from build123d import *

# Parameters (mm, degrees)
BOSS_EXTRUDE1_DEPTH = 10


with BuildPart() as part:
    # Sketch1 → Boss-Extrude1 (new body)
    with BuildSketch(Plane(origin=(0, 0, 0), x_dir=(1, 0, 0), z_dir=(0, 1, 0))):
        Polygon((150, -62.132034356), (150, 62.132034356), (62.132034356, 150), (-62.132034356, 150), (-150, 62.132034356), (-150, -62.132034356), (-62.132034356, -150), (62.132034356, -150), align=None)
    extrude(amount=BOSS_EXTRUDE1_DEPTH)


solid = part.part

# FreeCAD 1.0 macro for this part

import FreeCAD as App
import Part
import Sketcher
from FreeCAD import Vector

doc = App.newDocument("Part")
body = doc.addObject("PartDesign::Body", "Body")

# Sketch on XZ plane
sketch1 = body.newObject("Sketcher::SketchObject", "Sketch")
sketch1.AttachmentSupport = (doc.getObject("XZ_Plane"), [""])
sketch1.MapMode = "FlatFace"
sketch1.addGeometry([
    Part.LineSegment(Vector(150, 62, 0), Vector(150, -62, 0)),  # 0
    Part.LineSegment(Vector(150, -62, 0), Vector(62, -150, 0)),  # 1
    Part.LineSegment(Vector(62, -150, 0), Vector(-62, -150, 0)),  # 2
    Part.LineSegment(Vector(-62, -150, 0), Vector(-150, -62, 0)),  # 3
    Part.LineSegment(Vector(-150, -62, 0), Vector(-150, 62, 0)),  # 4
    Part.LineSegment(Vector(-150, 62, 0), Vector(-62, 150, 0)),  # 5
    Part.LineSegment(Vector(-62, 150, 0), Vector(62, 150, 0)),  # 6
    Part.LineSegment(Vector(62, 150, 0), Vector(150, 62, 0)),  # 7
], False)
sketch1.addConstraint([
    Sketcher.Constraint("Coincident", 0, 2, 1, 1),
    Sketcher.Constraint("Coincident", 1, 2, 2, 1),
    Sketcher.Constraint("Coincident", 2, 2, 3, 1),
    Sketcher.Constraint("Coincident", 3, 2, 4, 1),
    Sketcher.Constraint("Coincident", 4, 2, 5, 1),
    Sketcher.Constraint("Coincident", 5, 2, 6, 1),
    Sketcher.Constraint("Coincident", 6, 2, 7, 1),
    Sketcher.Constraint("Coincident", 7, 2, 0, 1),
    Sketcher.Constraint("Vertical", 0),
    Sketcher.Constraint("Horizontal", 2),
    Sketcher.Constraint("Vertical", 4),
    Sketcher.Constraint("Horizontal", 6),
    Sketcher.Constraint("Symmetric", 0, 2, 4, 2, -1, 1),
    Sketcher.Constraint("Symmetric", 1, 2, 5, 2, -1, 1),
    Sketcher.Constraint("Perpendicular", 1, 3),
    Sketcher.Constraint("Perpendicular", 5, 7),
    Sketcher.Constraint("Horizontal", 0, 2, 3, 2),
    Sketcher.Constraint("Horizontal", 4, 2, 7, 2),
    Sketcher.Constraint("Vertical", 2, 2, 5, 2),
    Sketcher.Constraint("Equal", 6, 0),
    Sketcher.Constraint("DistanceX", -1, 1, 0, 2, 150.0),
    Sketcher.Constraint("DistanceX", 2, 2, 2, 1, 124.264069),
])
pad1 = body.newObject("PartDesign::Pad", "Pad")
pad1.Profile = sketch1
pad1.Length = 10
pad1.Reversed = True

doc.recompute()
